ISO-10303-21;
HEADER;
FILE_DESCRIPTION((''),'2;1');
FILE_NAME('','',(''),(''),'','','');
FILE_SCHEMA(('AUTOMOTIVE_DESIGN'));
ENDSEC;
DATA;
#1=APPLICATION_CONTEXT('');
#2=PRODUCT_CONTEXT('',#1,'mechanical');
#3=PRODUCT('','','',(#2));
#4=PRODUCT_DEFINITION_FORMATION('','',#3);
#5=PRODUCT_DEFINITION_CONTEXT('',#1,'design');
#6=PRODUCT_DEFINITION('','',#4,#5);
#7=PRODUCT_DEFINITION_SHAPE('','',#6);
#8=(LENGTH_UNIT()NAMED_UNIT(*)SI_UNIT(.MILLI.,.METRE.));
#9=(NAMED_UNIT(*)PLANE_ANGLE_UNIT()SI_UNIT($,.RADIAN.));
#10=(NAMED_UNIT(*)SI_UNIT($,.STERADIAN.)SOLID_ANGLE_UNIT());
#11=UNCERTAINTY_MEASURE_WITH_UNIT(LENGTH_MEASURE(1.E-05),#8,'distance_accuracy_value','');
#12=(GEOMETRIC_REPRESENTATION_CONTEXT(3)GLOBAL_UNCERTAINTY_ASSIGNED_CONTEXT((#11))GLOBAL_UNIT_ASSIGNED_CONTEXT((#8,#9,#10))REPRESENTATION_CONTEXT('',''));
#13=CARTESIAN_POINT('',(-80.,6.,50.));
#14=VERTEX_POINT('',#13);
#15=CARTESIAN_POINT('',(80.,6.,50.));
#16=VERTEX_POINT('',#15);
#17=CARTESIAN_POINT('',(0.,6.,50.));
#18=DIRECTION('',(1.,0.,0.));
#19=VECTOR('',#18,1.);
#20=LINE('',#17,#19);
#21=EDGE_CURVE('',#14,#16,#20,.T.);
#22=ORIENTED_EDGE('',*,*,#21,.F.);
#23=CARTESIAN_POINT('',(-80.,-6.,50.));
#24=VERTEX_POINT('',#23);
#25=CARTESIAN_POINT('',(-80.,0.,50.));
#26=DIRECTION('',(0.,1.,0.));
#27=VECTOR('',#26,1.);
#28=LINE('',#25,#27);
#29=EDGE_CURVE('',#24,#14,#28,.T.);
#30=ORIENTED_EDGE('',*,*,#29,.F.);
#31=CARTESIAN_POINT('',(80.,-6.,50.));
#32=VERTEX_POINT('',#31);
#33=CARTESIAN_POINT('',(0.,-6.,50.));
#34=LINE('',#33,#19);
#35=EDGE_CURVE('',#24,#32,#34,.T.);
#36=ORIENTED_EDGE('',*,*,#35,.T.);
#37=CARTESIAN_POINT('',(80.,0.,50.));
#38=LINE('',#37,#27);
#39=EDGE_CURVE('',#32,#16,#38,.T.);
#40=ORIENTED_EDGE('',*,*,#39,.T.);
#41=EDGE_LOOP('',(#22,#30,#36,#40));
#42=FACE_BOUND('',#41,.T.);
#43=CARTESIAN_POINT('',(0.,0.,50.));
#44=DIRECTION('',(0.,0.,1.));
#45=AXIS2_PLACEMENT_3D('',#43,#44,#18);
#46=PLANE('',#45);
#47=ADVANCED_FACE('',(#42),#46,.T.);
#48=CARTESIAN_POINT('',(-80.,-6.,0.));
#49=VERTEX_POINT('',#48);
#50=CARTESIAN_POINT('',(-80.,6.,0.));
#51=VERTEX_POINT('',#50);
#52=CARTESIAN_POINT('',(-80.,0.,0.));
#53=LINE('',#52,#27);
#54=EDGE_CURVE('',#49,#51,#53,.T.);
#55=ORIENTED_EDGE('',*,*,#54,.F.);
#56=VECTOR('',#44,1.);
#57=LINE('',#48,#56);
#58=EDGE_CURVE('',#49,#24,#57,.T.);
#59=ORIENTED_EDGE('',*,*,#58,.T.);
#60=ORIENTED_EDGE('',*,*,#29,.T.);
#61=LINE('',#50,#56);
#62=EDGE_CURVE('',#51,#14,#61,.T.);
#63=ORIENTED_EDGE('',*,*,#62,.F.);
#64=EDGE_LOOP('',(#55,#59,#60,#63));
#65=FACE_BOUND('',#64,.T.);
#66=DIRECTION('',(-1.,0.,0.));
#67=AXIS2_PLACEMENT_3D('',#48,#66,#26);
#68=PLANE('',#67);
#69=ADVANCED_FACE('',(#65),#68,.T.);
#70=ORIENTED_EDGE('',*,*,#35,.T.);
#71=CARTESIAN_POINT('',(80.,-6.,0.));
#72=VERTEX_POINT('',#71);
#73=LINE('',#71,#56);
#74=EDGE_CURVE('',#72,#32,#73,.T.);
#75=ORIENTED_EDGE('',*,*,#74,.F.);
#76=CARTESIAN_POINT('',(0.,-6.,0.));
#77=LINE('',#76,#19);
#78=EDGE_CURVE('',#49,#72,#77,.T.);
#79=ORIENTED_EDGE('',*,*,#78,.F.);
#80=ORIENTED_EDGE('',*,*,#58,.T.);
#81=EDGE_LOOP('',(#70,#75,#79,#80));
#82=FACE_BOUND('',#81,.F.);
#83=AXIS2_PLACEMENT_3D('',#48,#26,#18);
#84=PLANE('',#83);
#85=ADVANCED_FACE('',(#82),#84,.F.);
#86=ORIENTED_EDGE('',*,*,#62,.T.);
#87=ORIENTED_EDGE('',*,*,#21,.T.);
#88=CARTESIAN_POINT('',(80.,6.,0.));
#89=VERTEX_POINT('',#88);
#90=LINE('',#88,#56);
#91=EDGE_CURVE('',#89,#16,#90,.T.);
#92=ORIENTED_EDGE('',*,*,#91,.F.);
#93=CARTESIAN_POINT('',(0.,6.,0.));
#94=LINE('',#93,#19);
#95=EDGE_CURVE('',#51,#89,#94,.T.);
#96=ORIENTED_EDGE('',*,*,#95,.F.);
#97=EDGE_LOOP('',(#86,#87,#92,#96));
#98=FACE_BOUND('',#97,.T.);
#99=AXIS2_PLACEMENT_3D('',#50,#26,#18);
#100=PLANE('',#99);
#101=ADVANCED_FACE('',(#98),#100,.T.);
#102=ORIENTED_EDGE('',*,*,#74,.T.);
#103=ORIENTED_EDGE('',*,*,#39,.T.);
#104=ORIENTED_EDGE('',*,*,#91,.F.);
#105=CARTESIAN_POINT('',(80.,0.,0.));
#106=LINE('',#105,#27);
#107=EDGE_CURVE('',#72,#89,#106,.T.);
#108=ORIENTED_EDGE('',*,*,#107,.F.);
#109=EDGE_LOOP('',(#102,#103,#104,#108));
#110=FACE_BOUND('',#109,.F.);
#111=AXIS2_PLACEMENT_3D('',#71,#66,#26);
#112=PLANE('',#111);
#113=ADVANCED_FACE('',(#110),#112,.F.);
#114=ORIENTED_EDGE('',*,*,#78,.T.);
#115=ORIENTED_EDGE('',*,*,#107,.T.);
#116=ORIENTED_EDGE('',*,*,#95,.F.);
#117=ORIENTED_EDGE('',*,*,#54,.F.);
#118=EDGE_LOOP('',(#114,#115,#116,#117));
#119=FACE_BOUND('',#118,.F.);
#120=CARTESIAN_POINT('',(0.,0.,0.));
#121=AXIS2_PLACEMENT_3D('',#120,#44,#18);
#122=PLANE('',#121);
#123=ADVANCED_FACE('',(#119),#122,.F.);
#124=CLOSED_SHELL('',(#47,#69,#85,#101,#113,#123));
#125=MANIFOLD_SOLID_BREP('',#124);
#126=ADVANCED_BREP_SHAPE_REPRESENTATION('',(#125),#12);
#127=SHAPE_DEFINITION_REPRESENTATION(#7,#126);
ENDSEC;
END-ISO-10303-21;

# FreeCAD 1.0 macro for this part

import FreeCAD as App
import Part
import Sketcher

V = App.Vector

doc = App.newDocument("Part")
body = doc.addObject("PartDesign::Body", "Body")

sketch1 = body.newObject("Sketcher::SketchObject", "Sketch")
sketch1.AttachmentSupport = (doc.getObject("XY_Plane"), [""])
sketch1.MapMode = "FlatFace"
sketch1.addGeometry(Part.LineSegment(V(-80, 6, 0), V(-80, -6, 0)), False)
sketch1.addGeometry(Part.LineSegment(V(-80, -6, 0), V(80, -6, 0)), False)
sketch1.addGeometry(Part.LineSegment(V(80, -6, 0), V(80, 6, 0)), False)
sketch1.addGeometry(Part.LineSegment(V(80, 6, 0), V(-80, 6, 0)), False)
sketch1.addConstraint(Sketcher.Constraint("Coincident", 0, 2, 1, 1))
sketch1.addConstraint(Sketcher.Constraint("Coincident", 1, 2, 2, 1))
sketch1.addConstraint(Sketcher.Constraint("Coincident", 2, 2, 3, 1))
sketch1.addConstraint(Sketcher.Constraint("Coincident", 3, 2, 0, 1))
sketch1.addConstraint(Sketcher.Constraint("Vertical", 0))
sketch1.addConstraint(Sketcher.Constraint("Horizontal", 1))
sketch1.addConstraint(Sketcher.Constraint("Vertical", 2))
sketch1.addConstraint(Sketcher.Constraint("Horizontal", 3))
sketch1.addConstraint(Sketcher.Constraint("Symmetric", 0, 2, 2, 2, -1, 1))
sketch1.addConstraint(Sketcher.Constraint("DistanceX", 1, 1, 1, 2, 160.0))
sketch1.addConstraint(Sketcher.Constraint("DistanceY", 0, 2, 0, 1, 12.0))
pad1 = body.newObject("PartDesign::Pad", "Pad")
pad1.Profile = sketch1
pad1.Length = 50

doc.recompute()
